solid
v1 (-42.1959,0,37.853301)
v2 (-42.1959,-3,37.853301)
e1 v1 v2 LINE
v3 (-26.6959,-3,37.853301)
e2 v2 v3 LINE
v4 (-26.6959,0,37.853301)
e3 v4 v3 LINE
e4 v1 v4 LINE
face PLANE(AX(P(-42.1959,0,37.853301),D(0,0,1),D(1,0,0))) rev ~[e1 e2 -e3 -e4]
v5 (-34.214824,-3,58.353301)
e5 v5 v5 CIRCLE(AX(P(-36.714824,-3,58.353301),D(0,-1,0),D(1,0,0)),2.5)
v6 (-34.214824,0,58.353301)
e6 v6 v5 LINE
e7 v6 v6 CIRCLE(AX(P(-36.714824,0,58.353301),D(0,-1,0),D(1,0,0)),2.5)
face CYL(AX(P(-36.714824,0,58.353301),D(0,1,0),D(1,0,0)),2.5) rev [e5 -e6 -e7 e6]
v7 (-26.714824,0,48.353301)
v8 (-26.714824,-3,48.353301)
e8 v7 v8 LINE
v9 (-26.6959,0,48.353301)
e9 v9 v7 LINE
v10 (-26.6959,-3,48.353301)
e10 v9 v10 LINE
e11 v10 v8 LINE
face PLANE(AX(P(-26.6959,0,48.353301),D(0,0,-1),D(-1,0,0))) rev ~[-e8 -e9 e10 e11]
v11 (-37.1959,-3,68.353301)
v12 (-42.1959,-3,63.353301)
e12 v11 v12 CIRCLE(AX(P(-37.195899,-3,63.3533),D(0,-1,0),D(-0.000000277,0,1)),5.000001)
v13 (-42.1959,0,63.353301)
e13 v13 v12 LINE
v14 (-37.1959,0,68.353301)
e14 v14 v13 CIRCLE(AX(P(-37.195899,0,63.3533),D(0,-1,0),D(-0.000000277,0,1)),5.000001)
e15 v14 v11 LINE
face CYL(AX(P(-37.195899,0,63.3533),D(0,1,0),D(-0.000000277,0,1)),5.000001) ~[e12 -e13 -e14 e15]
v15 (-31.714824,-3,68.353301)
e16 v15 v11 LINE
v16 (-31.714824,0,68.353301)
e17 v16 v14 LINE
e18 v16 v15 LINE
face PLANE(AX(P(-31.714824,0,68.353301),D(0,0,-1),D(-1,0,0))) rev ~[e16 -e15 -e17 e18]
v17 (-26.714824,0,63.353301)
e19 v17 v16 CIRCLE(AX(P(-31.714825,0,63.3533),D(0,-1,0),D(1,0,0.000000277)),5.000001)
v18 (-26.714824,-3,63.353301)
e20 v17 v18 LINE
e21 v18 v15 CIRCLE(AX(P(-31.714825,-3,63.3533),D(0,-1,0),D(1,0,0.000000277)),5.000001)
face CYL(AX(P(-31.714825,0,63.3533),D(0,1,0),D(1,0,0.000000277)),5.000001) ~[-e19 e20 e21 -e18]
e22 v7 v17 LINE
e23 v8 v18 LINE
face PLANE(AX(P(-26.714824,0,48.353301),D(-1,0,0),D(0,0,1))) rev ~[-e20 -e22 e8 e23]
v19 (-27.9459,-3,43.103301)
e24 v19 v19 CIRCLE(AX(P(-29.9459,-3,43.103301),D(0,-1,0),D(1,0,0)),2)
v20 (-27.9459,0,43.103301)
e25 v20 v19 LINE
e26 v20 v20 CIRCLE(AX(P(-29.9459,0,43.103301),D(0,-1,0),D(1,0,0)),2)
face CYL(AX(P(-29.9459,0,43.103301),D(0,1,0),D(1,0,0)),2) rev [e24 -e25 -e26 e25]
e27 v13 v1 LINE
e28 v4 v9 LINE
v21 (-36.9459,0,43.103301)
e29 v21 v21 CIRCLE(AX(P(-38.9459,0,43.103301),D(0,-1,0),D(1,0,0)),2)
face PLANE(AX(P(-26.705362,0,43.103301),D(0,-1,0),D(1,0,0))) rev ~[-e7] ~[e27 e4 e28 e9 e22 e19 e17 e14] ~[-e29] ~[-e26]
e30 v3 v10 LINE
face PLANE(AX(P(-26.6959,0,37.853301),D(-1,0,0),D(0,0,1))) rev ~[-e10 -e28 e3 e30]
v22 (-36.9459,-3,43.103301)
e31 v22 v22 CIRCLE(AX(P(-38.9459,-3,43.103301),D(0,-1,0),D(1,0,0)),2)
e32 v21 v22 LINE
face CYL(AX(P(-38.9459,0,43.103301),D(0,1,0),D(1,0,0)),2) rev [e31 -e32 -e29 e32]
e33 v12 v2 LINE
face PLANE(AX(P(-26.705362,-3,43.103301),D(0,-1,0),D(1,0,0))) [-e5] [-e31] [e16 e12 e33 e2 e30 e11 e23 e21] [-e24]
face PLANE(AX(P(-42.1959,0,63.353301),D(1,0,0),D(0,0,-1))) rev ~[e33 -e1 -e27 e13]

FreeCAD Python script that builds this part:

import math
import FreeCAD as App
import Part
import Sketcher
Q = App.Units.Quantity

doc = App.newDocument("Part")
body = doc.addObject("PartDesign::Body", "Body")

# Sketch on XZ plane
sketch1 = body.newObject("Sketcher::SketchObject", "Sketch")
sketch1.AttachmentSupport = (doc.getObject("XZ_Plane"), [""])
sketch1.MapMode = "FlatFace"
sketch1.addGeometry([
    Part.LineSegment(App.Vector(-26.6959, 37.853301, 0), App.Vector(-26.6959, 48.353301, 0)),  # 0
    Part.LineSegment(App.Vector(-26.6959, 48.353301, 0), App.Vector(-26.714824, 48.353301, 0)),  # 1
    Part.LineSegment(App.Vector(-26.714824, 48.353301, 0), App.Vector(-26.714824, 63.353301, 0)),  # 2
    Part.ArcOfCircle(Part.Circle(App.Vector(-31.714825, 63.3533, 0), App.Vector(0, 0, 1), 5.000001), math.radians(0.000016), math.radians(89.999984)),  # 3
    Part.LineSegment(App.Vector(-31.714824, 68.353301, 0), App.Vector(-37.1959, 68.353301, 0)),  # 4
    Part.ArcOfCircle(Part.Circle(App.Vector(-37.195899, 63.3533, 0), App.Vector(0, 0, 1), 5.000001), math.radians(90.000016), math.radians(179.999984)),  # 5
    Part.LineSegment(App.Vector(-42.1959, 63.353301, 0), App.Vector(-42.1959, 37.853301, 0)),  # 6
    Part.LineSegment(App.Vector(-42.1959, 37.853301, 0), App.Vector(-26.6959, 37.853301, 0)),  # 7
    Part.Circle(App.Vector(-38.9459, 43.103301, 0), App.Vector(0, 0, 1), 2),  # 8
    Part.Circle(App.Vector(-29.9459, 43.103301, 0), App.Vector(0, 0, 1), 2),  # 9
    Part.Circle(App.Vector(-36.714824, 58.353301, 0), App.Vector(0, 0, 1), 2.5),  # 10
], False)
sketch1.addConstraint([
    Sketcher.Constraint("Coincident", 0, 2, 1, 1),
    Sketcher.Constraint("Coincident", 1, 2, 2, 1),
    Sketcher.Constraint("Tangent", 2, 2, 3, 1),
    Sketcher.Constraint("Tangent", 3, 2, 4, 1),
    Sketcher.Constraint("Tangent", 4, 2, 5, 1),
    Sketcher.Constraint("Tangent", 5, 2, 6, 1),
    Sketcher.Constraint("Coincident", 6, 2, 7, 1),
    Sketcher.Constraint("Coincident", 7, 2, 0, 1),
    Sketcher.Constraint("Vertical", 0),
    Sketcher.Constraint("Horizontal", 1),
    Sketcher.Constraint("Vertical", 2),
    Sketcher.Constraint("Horizontal", 4),
    Sketcher.Constraint("Vertical", 6),
    Sketcher.Constraint("Horizontal", 7),
    Sketcher.Constraint("Equal", 3, 5),
    Sketcher.Constraint("Equal", 8, 9),
    Sketcher.Constraint("Horizontal", 8, 3, 9, 3),
    Sketcher.Constraint("Diameter", 8, Q("4 mm")),
    Sketcher.Constraint("Diameter", 10, Q("5 mm")),
    Sketcher.Constraint("Radius", 3, Q("5.000001 mm")),
    Sketcher.Constraint("DistanceY", 2, 1, 2, 2, Q("15 mm")),
    Sketcher.Constraint("DistanceX", 7, 1, 7, 2, Q("15.5 mm")),
    Sketcher.Constraint("DistanceY", 0, 1, 0, 2, Q("10.5 mm")),
    Sketcher.Constraint("DistanceX", 8, 3, 9, 3, Q("9 mm")),
    Sketcher.Constraint("DistanceY", 10, 3, 5, 3, Q("4.999999 mm")),
    Sketcher.Constraint("DistanceX", 10, 3, 3, 3, Q("4.999999 mm")),
    Sketcher.Constraint("DistanceX", 8, 3, 5, 3, Q("1.750001 mm")),
    Sketcher.Constraint("DistanceY", 8, 3, 5, 3, Q("20.249999 mm")),
    Sketcher.Constraint("DistanceY", -1, 1, 3, 3, Q("63.3533 mm")),
    Sketcher.Constraint("DistanceX", 5, 3, -1, 1, Q("37.195899 mm")),
    Sketcher.Constraint("DistanceX", 1, 2, 1, 1, Q("0.018924 mm")),
])
pad1 = body.newObject("PartDesign::Pad", "Pad")
pad1.Profile = sketch1
pad1.Length = 3

doc.recompute()
